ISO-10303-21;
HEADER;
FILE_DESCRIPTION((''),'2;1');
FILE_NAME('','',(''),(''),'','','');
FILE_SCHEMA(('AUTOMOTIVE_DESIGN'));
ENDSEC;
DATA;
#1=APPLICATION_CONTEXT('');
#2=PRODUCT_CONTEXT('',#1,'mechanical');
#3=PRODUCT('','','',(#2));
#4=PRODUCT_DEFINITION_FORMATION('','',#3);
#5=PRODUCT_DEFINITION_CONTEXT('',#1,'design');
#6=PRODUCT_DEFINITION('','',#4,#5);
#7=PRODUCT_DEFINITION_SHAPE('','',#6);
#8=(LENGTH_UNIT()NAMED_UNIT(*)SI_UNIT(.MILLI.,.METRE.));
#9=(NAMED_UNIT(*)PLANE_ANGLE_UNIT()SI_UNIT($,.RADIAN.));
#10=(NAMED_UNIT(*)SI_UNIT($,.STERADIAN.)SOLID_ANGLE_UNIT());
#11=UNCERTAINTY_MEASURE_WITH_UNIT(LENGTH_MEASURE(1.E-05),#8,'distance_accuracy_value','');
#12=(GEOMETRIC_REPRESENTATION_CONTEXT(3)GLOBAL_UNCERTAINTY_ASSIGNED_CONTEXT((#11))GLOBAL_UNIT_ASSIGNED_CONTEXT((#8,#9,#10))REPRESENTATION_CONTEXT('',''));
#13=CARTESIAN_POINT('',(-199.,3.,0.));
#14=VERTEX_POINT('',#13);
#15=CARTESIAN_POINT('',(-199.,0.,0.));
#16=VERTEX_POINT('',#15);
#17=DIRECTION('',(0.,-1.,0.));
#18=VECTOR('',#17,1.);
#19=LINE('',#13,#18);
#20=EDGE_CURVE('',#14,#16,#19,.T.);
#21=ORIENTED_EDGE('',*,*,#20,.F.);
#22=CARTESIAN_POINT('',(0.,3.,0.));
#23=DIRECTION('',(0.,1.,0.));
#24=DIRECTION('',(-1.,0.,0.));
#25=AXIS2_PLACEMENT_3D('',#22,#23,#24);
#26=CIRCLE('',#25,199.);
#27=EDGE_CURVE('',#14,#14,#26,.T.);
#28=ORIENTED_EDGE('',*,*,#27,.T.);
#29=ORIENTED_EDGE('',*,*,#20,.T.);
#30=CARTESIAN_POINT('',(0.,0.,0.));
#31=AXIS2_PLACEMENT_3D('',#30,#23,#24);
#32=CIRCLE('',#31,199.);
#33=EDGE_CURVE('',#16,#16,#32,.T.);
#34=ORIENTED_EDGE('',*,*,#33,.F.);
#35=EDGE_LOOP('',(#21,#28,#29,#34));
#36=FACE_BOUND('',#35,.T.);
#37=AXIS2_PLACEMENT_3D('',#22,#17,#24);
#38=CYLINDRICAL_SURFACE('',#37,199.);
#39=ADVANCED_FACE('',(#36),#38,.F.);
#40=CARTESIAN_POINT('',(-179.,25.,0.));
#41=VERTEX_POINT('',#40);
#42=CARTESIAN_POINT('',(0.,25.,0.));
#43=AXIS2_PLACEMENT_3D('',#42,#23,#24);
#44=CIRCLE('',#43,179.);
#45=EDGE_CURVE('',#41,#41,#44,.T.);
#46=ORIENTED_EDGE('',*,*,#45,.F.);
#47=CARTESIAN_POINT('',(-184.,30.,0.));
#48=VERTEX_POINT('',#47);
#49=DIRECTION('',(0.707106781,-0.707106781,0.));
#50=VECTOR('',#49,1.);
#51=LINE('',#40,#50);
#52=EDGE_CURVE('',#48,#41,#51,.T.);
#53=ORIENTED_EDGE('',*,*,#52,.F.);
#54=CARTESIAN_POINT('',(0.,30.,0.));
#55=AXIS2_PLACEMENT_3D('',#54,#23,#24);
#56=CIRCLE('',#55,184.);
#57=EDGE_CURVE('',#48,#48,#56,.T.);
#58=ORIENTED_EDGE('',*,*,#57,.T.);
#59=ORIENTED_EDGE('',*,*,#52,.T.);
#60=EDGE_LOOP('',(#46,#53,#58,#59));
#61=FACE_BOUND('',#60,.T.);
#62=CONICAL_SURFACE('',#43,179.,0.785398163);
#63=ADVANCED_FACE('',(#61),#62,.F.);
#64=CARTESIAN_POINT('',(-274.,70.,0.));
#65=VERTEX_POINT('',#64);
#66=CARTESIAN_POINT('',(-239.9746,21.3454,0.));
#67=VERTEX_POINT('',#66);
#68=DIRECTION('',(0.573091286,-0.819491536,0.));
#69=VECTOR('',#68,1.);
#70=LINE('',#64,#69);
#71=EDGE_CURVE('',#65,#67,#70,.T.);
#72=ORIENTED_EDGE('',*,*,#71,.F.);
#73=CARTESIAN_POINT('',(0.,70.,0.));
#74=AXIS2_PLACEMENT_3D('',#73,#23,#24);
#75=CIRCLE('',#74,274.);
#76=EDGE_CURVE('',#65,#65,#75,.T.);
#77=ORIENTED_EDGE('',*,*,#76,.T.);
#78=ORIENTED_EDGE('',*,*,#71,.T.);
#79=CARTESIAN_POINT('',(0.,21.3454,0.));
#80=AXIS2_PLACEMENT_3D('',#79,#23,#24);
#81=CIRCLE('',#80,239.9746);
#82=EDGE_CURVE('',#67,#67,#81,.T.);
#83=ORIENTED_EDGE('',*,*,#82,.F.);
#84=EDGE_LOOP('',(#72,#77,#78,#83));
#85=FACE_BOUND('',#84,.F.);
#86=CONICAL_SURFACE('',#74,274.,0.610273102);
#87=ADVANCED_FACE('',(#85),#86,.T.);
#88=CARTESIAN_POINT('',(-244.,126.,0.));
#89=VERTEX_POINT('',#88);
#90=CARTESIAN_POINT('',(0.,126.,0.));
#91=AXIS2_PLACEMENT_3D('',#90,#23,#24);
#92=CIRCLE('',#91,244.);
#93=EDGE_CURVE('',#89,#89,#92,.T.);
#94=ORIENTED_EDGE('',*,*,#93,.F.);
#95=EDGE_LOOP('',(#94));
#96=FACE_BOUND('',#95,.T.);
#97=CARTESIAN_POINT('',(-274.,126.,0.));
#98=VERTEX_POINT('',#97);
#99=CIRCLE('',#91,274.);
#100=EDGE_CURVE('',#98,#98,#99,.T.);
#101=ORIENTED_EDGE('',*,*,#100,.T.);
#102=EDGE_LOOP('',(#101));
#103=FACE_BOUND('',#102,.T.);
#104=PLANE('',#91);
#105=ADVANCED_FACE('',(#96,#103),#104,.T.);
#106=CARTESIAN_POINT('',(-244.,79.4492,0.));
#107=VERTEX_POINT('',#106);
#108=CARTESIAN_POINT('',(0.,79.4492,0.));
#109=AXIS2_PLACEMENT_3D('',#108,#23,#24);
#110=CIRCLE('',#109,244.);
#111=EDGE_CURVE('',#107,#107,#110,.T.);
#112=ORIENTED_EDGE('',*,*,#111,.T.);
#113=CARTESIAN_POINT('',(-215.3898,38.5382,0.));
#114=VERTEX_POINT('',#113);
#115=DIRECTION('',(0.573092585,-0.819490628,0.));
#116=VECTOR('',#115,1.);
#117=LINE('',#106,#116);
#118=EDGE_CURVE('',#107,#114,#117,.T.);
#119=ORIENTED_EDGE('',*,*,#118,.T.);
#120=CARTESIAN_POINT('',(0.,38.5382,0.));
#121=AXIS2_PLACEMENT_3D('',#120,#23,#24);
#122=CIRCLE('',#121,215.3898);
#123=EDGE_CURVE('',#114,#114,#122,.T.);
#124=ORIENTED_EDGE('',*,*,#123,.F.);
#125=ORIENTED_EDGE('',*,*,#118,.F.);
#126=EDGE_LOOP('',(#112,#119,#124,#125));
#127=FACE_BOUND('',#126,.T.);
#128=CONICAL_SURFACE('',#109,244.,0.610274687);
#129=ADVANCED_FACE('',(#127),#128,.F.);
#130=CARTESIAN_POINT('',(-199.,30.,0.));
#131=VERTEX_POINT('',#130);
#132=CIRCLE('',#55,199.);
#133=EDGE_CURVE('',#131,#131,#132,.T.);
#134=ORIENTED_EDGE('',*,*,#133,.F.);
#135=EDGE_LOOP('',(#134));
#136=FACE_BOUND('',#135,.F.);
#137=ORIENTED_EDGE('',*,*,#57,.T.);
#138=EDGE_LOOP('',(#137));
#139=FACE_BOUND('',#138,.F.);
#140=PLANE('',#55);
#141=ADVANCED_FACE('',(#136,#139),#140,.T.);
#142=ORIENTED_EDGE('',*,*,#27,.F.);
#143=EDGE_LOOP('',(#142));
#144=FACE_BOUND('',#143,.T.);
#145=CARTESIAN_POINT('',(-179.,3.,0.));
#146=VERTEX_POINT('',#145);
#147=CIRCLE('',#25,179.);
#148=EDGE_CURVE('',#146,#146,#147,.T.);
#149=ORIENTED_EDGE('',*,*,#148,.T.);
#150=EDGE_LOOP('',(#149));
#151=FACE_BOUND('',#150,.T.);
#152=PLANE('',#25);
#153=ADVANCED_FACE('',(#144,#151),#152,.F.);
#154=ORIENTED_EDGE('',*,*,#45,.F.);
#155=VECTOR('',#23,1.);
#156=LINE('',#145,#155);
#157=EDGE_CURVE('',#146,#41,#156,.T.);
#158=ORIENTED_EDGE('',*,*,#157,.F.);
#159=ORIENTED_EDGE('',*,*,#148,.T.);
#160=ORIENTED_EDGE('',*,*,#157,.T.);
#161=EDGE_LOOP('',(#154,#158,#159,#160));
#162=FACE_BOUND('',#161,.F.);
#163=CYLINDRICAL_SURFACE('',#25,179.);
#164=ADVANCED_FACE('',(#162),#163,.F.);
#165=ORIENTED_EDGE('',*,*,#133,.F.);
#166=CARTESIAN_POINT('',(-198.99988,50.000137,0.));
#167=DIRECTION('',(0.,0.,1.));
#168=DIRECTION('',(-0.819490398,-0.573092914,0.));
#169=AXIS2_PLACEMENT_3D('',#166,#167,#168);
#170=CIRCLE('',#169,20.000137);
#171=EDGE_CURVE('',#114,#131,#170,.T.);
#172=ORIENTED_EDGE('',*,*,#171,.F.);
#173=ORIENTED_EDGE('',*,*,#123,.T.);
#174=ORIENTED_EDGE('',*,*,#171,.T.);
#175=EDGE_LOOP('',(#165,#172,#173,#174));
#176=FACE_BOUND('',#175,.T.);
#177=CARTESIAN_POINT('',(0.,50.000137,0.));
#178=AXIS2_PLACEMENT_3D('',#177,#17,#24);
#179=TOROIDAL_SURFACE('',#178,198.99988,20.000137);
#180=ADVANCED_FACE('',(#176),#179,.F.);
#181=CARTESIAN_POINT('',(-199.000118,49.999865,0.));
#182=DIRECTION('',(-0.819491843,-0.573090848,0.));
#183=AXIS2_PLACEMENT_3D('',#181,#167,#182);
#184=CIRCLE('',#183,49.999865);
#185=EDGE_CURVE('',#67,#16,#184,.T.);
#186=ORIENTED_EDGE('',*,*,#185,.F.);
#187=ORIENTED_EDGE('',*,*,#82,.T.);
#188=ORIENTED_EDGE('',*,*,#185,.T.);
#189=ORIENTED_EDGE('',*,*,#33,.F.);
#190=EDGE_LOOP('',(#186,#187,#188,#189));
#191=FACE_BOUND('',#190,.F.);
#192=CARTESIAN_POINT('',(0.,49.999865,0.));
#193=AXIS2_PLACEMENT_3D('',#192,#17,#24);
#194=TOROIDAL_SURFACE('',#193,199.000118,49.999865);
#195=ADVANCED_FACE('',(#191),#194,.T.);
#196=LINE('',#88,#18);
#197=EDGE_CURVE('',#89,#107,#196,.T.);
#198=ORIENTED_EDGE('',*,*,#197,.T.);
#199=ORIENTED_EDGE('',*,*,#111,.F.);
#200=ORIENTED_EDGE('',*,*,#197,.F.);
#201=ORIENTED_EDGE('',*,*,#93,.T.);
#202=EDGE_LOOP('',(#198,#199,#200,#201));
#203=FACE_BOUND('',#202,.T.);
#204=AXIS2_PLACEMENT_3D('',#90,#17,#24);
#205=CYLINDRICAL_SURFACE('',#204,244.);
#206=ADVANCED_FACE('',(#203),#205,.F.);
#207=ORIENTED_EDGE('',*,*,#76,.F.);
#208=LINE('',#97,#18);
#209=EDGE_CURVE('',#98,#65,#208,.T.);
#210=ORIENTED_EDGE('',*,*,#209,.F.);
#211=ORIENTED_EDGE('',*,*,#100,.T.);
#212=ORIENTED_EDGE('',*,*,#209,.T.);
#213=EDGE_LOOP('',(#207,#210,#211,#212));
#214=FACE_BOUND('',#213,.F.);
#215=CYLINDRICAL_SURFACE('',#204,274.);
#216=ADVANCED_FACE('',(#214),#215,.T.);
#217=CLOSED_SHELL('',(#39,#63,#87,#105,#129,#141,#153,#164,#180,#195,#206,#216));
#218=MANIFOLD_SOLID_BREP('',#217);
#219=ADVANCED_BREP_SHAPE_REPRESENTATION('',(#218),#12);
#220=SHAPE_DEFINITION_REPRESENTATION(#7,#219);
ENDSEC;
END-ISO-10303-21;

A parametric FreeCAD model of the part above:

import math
import FreeCAD as App
import Part
import Sketcher
from FreeCAD import Vector


def edges_at(feature, points):
    """Names of the edges that pass closest to the given points."""
    edges = feature.Shape.Edges
    near = lambda p: min(range(len(edges)), key=lambda i: edges[i].distToShape(Part.Vertex(*p))[0])
    return sorted({f"Edge{near(p) + 1}" for p in points})

doc = App.newDocument("Part")
params = doc.addObject("Spreadsheet::Sheet", "Params")
for row, (alias, value) in enumerate([
    ("sketch1_radius", "20 mm"),
    ("sketch1_radius2", "50 mm"),
    ("sketch1_width", "20 mm"),
    ("sketch1_width2", "30 mm"),
    ("sketch1_height", "27 mm"),
    ("revolution_angle", "360 deg"),
    ("chamfer_size", "5 mm"),
], start=1):
    params.set(f"A{row}", alias)
    params.set(f"B{row}", "=" + value)
    params.setAlias(f"B{row}", alias)

body = doc.addObject("PartDesign::Body", "Body")

# Sketch on XY plane
sketch1 = body.newObject("Sketcher::SketchObject", "Sketch")
sketch1.AttachmentSupport = (doc.getObject("XY_Plane"), [""])
sketch1.MapMode = "FlatFace"
sketch1.addGeometry([
    Part.LineSegment(Vector(-199, 3, 0), Vector(-179, 3, 0)),  # 0
    Part.LineSegment(Vector(-179, 3, 0), Vector(-179, 30, 0)),  # 1
    Part.LineSegment(Vector(-179, 30, 0), Vector(-199, 30, 0)),  # 2
    Part.ArcOfCircle(Part.Circle(Vector(-199, 50, 0), Vector(0, 0, 1), 20), math.radians(-145), math.radians(-90)),  # 3
    Part.LineSegment(Vector(-215.4, 38.5, 0), Vector(-244, 79.4, 0)),  # 4
    Part.LineSegment(Vector(-244, 79.4, 0), Vector(-244, 126, 0)),  # 5
    Part.LineSegment(Vector(-244, 126, 0), Vector(-274, 126, 0)),  # 6
    Part.LineSegment(Vector(-274, 126, 0), Vector(-274, 70, 0)),  # 7
    Part.LineSegment(Vector(-274, 70, 0), Vector(-240, 21.3, 0)),  # 8
    Part.ArcOfCircle(Part.Circle(Vector(-199, 50, 0), Vector(0, 0, 1), 50), math.radians(-145), math.radians(-90)),  # 9
    Part.LineSegment(Vector(-199, 0, 0), Vector(-199, 3, 0)),  # 10
], False)
sketch1.addConstraint([
    Sketcher.Constraint("Coincident", 0, 2, 1, 1),
    Sketcher.Constraint("Coincident", 1, 2, 2, 1),
    Sketcher.Constraint("Tangent", 2, 2, 3, 2),
    Sketcher.Constraint("Tangent", 3, 1, 4, 1),
    Sketcher.Constraint("Coincident", 4, 2, 5, 1),
    Sketcher.Constraint("Coincident", 5, 2, 6, 1),
    Sketcher.Constraint("Coincident", 6, 2, 7, 1),
    Sketcher.Constraint("Coincident", 7, 2, 8, 1),
    Sketcher.Constraint("Tangent", 8, 2, 9, 1),
    Sketcher.Constraint("Coincident", 9, 2, 10, 1),
    Sketcher.Constraint("Coincident", 10, 2, 0, 1),
    Sketcher.Constraint("Horizontal", 0),
    Sketcher.Constraint("Vertical", 1),
    Sketcher.Constraint("Horizontal", 2),
    Sketcher.Constraint("Vertical", 5),
    Sketcher.Constraint("Horizontal", 6),
    Sketcher.Constraint("Vertical", 7),
    Sketcher.Constraint("Vertical", 10),
    Sketcher.Constraint("Coincident", 9, 3, 3, 3),
    Sketcher.Constraint("PointOnObject", 9, 2, -1),
    Sketcher.Constraint("Parallel", 4, 8),
    Sketcher.Constraint("Vertical", 2, 2, 9, 2),
    Sketcher.Constraint("Radius", 3, 20.0),
    Sketcher.Constraint("Radius", 9, 50.0),
    Sketcher.Constraint("DistanceX", 0, 1, 0, 2, 20.0),
    Sketcher.Constraint("DistanceX", 6, 2, 6, 1, 30.0),
    Sketcher.Constraint("DistanceY", 1, 1, 1, 2, 27.0),
    Sketcher.Constraint("DistanceX", 3, 3, -1, 1, 199.0),
    Sketcher.Constraint("DistanceY", -1, 1, 7, 2, 70.0),
    Sketcher.Constraint("DistanceX", 4, 2, 1, 2, 65.0),
    Sketcher.Constraint("DistanceY", 7, 2, 7, 1, 56.0),
])
sketch1.setExpression("Constraints[22]", "Params.sketch1_radius")
sketch1.setExpression("Constraints[23]", "Params.sketch1_radius2")
sketch1.setExpression("Constraints[24]", "Params.sketch1_width")
sketch1.setExpression("Constraints[25]", "Params.sketch1_width2")
sketch1.setExpression("Constraints[26]", "Params.sketch1_height")
revolution = body.newObject("PartDesign::Revolution", "Revolution")
revolution.Profile = sketch1
revolution.ReferenceAxis = (sketch1, ["V_Axis"])
revolution.setExpression("Angle", "Params.revolution_angle")
doc.recompute()

chamfer = body.newObject("PartDesign::Chamfer", "Chamfer")
chamfer.Base = (revolution, edges_at(revolution, [(179, 30, 0)]))
chamfer.setExpression("Size", "Params.chamfer_size")

doc.recompute()
